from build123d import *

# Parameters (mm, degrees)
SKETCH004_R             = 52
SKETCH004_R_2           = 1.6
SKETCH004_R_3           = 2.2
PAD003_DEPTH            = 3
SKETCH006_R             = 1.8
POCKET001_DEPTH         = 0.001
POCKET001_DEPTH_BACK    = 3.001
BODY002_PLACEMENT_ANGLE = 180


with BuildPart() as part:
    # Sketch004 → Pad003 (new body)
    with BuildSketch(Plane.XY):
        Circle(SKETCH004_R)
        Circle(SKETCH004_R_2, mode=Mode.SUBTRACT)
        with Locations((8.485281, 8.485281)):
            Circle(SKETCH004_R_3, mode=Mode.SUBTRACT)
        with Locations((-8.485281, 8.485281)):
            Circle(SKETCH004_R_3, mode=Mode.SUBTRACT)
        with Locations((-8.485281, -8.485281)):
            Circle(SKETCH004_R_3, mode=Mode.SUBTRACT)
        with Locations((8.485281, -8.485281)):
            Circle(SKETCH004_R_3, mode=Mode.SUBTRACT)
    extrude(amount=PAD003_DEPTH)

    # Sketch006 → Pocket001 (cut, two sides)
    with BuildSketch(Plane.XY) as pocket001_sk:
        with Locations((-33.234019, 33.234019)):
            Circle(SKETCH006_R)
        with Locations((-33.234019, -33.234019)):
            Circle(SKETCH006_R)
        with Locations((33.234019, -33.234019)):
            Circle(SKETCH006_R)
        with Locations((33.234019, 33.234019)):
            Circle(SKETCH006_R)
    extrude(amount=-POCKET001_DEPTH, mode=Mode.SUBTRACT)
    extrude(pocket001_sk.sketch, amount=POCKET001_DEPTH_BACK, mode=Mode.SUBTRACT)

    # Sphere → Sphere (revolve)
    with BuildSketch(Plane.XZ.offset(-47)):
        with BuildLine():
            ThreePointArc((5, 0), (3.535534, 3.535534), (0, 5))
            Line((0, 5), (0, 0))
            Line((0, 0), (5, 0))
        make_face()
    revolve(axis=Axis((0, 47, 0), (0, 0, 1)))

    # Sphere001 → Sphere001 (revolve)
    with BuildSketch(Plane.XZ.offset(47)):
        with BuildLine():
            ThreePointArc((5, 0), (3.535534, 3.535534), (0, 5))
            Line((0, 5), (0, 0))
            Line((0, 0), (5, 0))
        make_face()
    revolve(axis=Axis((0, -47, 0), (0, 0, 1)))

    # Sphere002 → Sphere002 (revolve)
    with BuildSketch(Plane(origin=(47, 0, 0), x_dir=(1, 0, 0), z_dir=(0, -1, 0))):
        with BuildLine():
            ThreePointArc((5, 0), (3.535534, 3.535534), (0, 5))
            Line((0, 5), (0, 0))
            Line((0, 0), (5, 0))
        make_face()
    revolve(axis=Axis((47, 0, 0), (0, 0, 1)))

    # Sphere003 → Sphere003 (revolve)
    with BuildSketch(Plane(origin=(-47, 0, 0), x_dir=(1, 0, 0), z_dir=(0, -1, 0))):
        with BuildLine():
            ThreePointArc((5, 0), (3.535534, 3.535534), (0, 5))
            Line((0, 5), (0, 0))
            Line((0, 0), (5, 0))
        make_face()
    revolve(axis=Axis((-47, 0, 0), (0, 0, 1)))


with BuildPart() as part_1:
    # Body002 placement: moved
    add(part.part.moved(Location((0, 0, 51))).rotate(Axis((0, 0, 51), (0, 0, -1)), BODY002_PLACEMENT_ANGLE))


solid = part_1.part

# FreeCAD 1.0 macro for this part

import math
import FreeCAD as App
import Part
import Sketcher
Q = App.Units.Quantity

doc = App.newDocument("Part")
body = doc.addObject("PartDesign::Body", "Body")

sketch1 = doc.addObject("Sketcher::SketchObject", "Sketch")
body.addObject(sketch1)
sketch1.AttachmentSupport = (doc.XY_Plane, [""])
sketch1.MapMode = "FlatFace"
sketch1.addGeometry([
    Part.Circle(App.Vector(0, 0, 0), App.Vector(0, 0, 1), 52),
    Part.Circle(App.Vector(-8.485281, -8.485281, 0), App.Vector(0, 0, 1), 2.2),
    Part.Circle(App.Vector(8.485281, -8.485281, 0), App.Vector(0, 0, 1), 2.2),
    Part.Circle(App.Vector(-8.485281, 8.485281, 0), App.Vector(0, 0, 1), 2.2),
    Part.Circle(App.Vector(0, 0, 0), App.Vector(0, 0, 1), 1.6),
    Part.Circle(App.Vector(8.485281, 8.485281, 0), App.Vector(0, 0, 1), 2.2),
], False)
sketch1.addConstraint([
    Sketcher.Constraint("Coincident", 0, 3, -1, 1),
    Sketcher.Constraint("Coincident", 4, 3, -1, 1),
    Sketcher.Constraint("Equal", 1, 2),
    Sketcher.Constraint("Equal", 2, 3),
    Sketcher.Constraint("Equal", 3, 5),
    Sketcher.Constraint("Symmetric", 2, 3, 3, 3, -1, 1),
    Sketcher.Constraint("Symmetric", 1, 3, 5, 3, -1, 1),
    Sketcher.Constraint("Symmetric", 1, 3, 2, 3, -2),
    Sketcher.Constraint("Diameter", 0, Q("104 mm")),
    Sketcher.Constraint("Diameter", 1, Q("4.4 mm")),
    Sketcher.Constraint("Diameter", 4, Q("3.2 mm")),
    Sketcher.Constraint("DistanceX", 1, 3, -1, 1, Q("8.485281 mm")),
    Sketcher.Constraint("DistanceY", 1, 3, -1, 1, Q("8.485281 mm")),
])
pad1 = doc.addObject("PartDesign::Pad", "Pad")
body.addObject(pad1)
pad1.Profile = sketch1
pad1.Length = 3

sketch2 = doc.addObject("Sketcher::SketchObject", "Sketch001")
body.addObject(sketch2)
sketch2.AttachmentSupport = (doc.XY_Plane, [""])
sketch2.MapMode = "FlatFace"
sketch2.addGeometry([
    Part.Circle(App.Vector(-33.234019, 33.234019, 0), App.Vector(0, 0, 1), 1.8),
    Part.Circle(App.Vector(-33.234019, -33.234019, 0), App.Vector(0, 0, 1), 1.8),
    Part.Circle(App.Vector(33.234019, -33.234019, 0), App.Vector(0, 0, 1), 1.8),
    Part.Circle(App.Vector(33.234019, 33.234019, 0), App.Vector(0, 0, 1), 1.8),
], False)
sketch2.addConstraint([
    Sketcher.Constraint("Equal", 0, 1),
    Sketcher.Constraint("Equal", 1, 2),
    Sketcher.Constraint("Equal", 2, 3),
    Sketcher.Constraint("Symmetric", 0, 3, 2, 3, -1, 1),
    Sketcher.Constraint("Symmetric", 1, 3, 3, 3, -1, 1),
    Sketcher.Constraint("Symmetric", 1, 3, 2, 3, -2),
    Sketcher.Constraint("Diameter", 0, Q("3.6 mm")),
    Sketcher.Constraint("DistanceX", 0, 3, -1, 1, Q("33.234019 mm")),
    Sketcher.Constraint("DistanceY", -1, 1, 0, 3, Q("33.234019 mm")),
])
pocket1 = doc.addObject("PartDesign::Pocket", "Pocket")
body.addObject(pocket1)
pocket1.Profile = sketch2
pocket1.Type = "ThroughAll"
pocket1.Midplane = True

sketch3 = doc.addObject("Sketcher::SketchObject", "Sketch002")
body.addObject(sketch3)
sketch3.AttachmentSupport = (doc.XZ_Plane, [""])
sketch3.MapMode = "FlatFace"
sketch3.AttachmentOffset = App.Placement(App.Vector(0, 0, -47), App.Rotation())
sketch3.addGeometry([
    Part.ArcOfCircle(Part.Circle(App.Vector(0, 0, 0), App.Vector(0, 0, 1), 5), math.radians(-0.000004), math.radians(90.000004)),
    Part.LineSegment(App.Vector(0, 5, 0), App.Vector(0, 0, 0)),
    Part.LineSegment(App.Vector(0, 0, 0), App.Vector(5, 0, 0)),
], False)
sketch3.addConstraint([
    Sketcher.Constraint("Coincident", 0, 2, 1, 1),
    Sketcher.Constraint("Coincident", 1, 2, 2, 1),
    Sketcher.Constraint("Coincident", 2, 2, 0, 1),
    Sketcher.Constraint("Vertical", 1),
    Sketcher.Constraint("Horizontal", 2),
    Sketcher.Constraint("Coincident", 0, 3, -1, 1),
    Sketcher.Constraint("Coincident", 1, 2, -1, 1),
    Sketcher.Constraint("Radius", 0, Q("5 mm")),
])
revolution = doc.addObject("PartDesign::Revolution", "Revolution")
body.addObject(revolution)
revolution.Profile = sketch3
revolution.ReferenceAxis = (sketch3, ["V_Axis"])
revolution.Angle = 360

sketch4 = doc.addObject("Sketcher::SketchObject", "Sketch003")
body.addObject(sketch4)
sketch4.AttachmentSupport = (doc.XZ_Plane, [""])
sketch4.MapMode = "FlatFace"
sketch4.AttachmentOffset = App.Placement(App.Vector(0, 0, 47), App.Rotation())
sketch4.addGeometry([
    Part.ArcOfCircle(Part.Circle(App.Vector(0, 0, 0), App.Vector(0, 0, 1), 5), math.radians(-0.000004), math.radians(90.000004)),
    Part.LineSegment(App.Vector(0, 5, 0), App.Vector(0, 0, 0)),
    Part.LineSegment(App.Vector(0, 0, 0), App.Vector(5, 0, 0)),
], False)
sketch4.addConstraint([
    Sketcher.Constraint("Coincident", 0, 2, 1, 1),
    Sketcher.Constraint("Coincident", 1, 2, 2, 1),
    Sketcher.Constraint("Coincident", 2, 2, 0, 1),
    Sketcher.Constraint("Vertical", 1),
    Sketcher.Constraint("Horizontal", 2),
    Sketcher.Constraint("Coincident", 0, 3, -1, 1),
    Sketcher.Constraint("Coincident", 1, 2, -1, 1),
    Sketcher.Constraint("Radius", 0, Q("5 mm")),
])
revolution2 = doc.addObject("PartDesign::Revolution", "Revolution001")
body.addObject(revolution2)
revolution2.Profile = sketch4
revolution2.ReferenceAxis = (sketch4, ["V_Axis"])
revolution2.Angle = 360

sketch5 = doc.addObject("Sketcher::SketchObject", "Sketch004")
body.addObject(sketch5)
sketch5.AttachmentSupport = (doc.XZ_Plane, [""])
sketch5.MapMode = "FlatFace"
sketch5.addGeometry([
    Part.ArcOfCircle(Part.Circle(App.Vector(47, 0, 0), App.Vector(0, 0, 1), 5), math.radians(-0.000004), math.radians(90.000004)),
    Part.LineSegment(App.Vector(47, 5, 0), App.Vector(47, 0, 0)),
    Part.LineSegment(App.Vector(47, 0, 0), App.Vector(52, 0, 0)),
], False)
sketch5.addGeometry(Part.LineSegment(App.Vector(47, 0, 0), App.Vector(47, 5, 0)), True)
sketch5.addConstraint([
    Sketcher.Constraint("Coincident", 0, 2, 1, 1),
    Sketcher.Constraint("Coincident", 1, 2, 2, 1),
    Sketcher.Constraint("Coincident", 2, 2, 0, 1),
    Sketcher.Constraint("Vertical", 1),
    Sketcher.Constraint("Horizontal", 2),
    Sketcher.Constraint("Vertical", 3),
    Sketcher.Constraint("Coincident", 1, 2, 0, 3),
    Sketcher.Constraint("Coincident", 3, 1, 0, 3),
    Sketcher.Constraint("PointOnObject", 0, 3, -1),
    Sketcher.Constraint("Equal", 1, 3),
    Sketcher.Constraint("Radius", 0, Q("5 mm")),
    Sketcher.Constraint("DistanceX", -1, 1, 0, 3, Q("47 mm")),
])
revolution3 = doc.addObject("PartDesign::Revolution", "Revolution002")
body.addObject(revolution3)
revolution3.Profile = sketch5
revolution3.ReferenceAxis = (sketch5, ["Axis0"])
revolution3.Angle = 360

sketch6 = doc.addObject("Sketcher::SketchObject", "Sketch005")
body.addObject(sketch6)
sketch6.AttachmentSupport = (doc.XZ_Plane, [""])
sketch6.MapMode = "FlatFace"
sketch6.addGeometry([
    Part.ArcOfCircle(Part.Circle(App.Vector(-47, 0, 0), App.Vector(0, 0, 1), 5), math.radians(-0.000004), math.radians(90.000004)),
    Part.LineSegment(App.Vector(-47, 5, 0), App.Vector(-47, 0, 0)),
    Part.LineSegment(App.Vector(-47, 0, 0), App.Vector(-42, 0, 0)),
], False)
sketch6.addGeometry(Part.LineSegment(App.Vector(-47, 0, 0), App.Vector(-47, 5, 0)), True)
sketch6.addConstraint([
    Sketcher.Constraint("Coincident", 0, 2, 1, 1),
    Sketcher.Constraint("Coincident", 1, 2, 2, 1),
    Sketcher.Constraint("Coincident", 2, 2, 0, 1),
    Sketcher.Constraint("Vertical", 1),
    Sketcher.Constraint("Horizontal", 2),
    Sketcher.Constraint("Vertical", 3),
    Sketcher.Constraint("Coincident", 1, 2, 0, 3),
    Sketcher.Constraint("Coincident", 3, 1, 0, 3),
    Sketcher.Constraint("PointOnObject", 0, 3, -1),
    Sketcher.Constraint("Equal", 1, 3),
    Sketcher.Constraint("Radius", 0, Q("5 mm")),
    Sketcher.Constraint("DistanceX", 0, 3, -1, 1, Q("47 mm")),
])
revolution4 = doc.addObject("PartDesign::Revolution", "Revolution003")
body.addObject(revolution4)
revolution4.Profile = sketch6
revolution4.ReferenceAxis = (sketch6, ["Axis0"])
revolution4.Angle = 360
body2 = doc.addObject("PartDesign::Body", "Body001")
doc.recompute()

body.Placement = App.Placement(App.Vector(0, 0, 51), App.Rotation(App.Vector(0, 0, -1), 180))
boolean = doc.addObject("PartDesign::Boolean", "Boolean")
body2.addObject(boolean)
boolean.Type = "Fuse"
boolean.addObjects([body])

doc.recompute()
